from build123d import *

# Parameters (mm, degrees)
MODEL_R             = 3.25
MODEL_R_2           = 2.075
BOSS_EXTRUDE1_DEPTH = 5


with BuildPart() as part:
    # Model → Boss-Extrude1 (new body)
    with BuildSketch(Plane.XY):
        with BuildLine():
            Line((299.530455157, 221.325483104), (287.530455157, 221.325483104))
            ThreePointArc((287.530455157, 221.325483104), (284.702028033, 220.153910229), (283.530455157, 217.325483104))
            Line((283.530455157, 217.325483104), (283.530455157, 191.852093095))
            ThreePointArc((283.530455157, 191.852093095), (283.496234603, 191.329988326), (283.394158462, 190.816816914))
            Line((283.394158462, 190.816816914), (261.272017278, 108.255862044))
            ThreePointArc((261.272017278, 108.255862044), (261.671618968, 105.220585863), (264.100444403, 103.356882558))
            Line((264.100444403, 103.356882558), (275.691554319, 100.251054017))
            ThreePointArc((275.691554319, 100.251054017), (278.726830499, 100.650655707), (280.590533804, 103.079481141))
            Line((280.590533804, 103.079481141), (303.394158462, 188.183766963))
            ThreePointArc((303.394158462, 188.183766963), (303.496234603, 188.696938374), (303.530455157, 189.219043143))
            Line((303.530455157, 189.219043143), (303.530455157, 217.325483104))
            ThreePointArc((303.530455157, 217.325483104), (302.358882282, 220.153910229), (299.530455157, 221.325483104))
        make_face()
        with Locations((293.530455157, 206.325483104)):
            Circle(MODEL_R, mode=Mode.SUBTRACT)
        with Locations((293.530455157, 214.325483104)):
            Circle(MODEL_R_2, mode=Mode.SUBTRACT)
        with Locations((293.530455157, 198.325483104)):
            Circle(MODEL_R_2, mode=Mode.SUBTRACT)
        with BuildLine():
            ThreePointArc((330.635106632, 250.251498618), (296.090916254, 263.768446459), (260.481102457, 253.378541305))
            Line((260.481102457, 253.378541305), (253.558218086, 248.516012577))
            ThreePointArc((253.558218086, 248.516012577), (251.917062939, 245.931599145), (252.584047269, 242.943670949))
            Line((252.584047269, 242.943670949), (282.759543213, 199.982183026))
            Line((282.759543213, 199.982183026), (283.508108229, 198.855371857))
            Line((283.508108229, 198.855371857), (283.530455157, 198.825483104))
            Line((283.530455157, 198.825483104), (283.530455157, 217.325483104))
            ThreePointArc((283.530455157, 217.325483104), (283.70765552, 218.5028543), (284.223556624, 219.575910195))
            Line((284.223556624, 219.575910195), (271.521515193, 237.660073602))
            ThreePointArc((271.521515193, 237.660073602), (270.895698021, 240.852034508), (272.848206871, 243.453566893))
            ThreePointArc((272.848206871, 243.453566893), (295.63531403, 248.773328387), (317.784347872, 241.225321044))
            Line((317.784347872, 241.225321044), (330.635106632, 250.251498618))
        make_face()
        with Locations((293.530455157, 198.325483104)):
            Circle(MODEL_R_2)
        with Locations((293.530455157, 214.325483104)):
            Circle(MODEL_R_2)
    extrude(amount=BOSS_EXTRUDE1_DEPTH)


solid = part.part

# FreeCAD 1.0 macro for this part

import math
import FreeCAD as App
import Part
import Sketcher
from FreeCAD import Vector
Q = App.Units.Quantity

doc = App.newDocument("Part")
params = doc.addObject("Spreadsheet::Sheet", "Params")
for row, (alias, value) in enumerate([
    ("sketch1_radius", "4 mm"),
    ("sketch1_diameter", "6.5 mm"),
    ("sketch1_radius2", "42.5 mm"),
    ("sketch1_radius3", "57.5 mm"),
    ("sketch1_width", "12 mm"),
    ("pad1_length", "5 mm"),
], start=1):
    params.set(f"A{row}", alias)
    params.set(f"B{row}", "=" + value)
    params.setAlias(f"B{row}", alias)

body = doc.addObject("PartDesign::Body", "Body")

# Sketch on XY plane
sketch1 = body.newObject("Sketcher::SketchObject", "Sketch")
sketch1.AttachmentSupport = (doc.getObject("XY_Plane"), [""])
sketch1.MapMode = "FlatFace"
sketch1.addGeometry([
    Part.LineSegment(Vector(299.53, 221.325, 0), Vector(287.53, 221.325, 0)),  # 0
    Part.ArcOfCircle(Part.Circle(Vector(287.53, 217.325, 0), Vector(0, 0, 1), 4), math.radians(90), math.radians(146)),  # 1
    Part.LineSegment(Vector(284.224, 219.576, 0), Vector(271.522, 237.66, 0)),  # 2
    Part.ArcOfCircle(Part.Circle(Vector(274.795, 239.959, 0), Vector(0, 0, 1), 4), math.radians(119), math.radians(215)),  # 3
    Part.ArcOfCircle(Part.Circle(Vector(293.53, 206.325, 0), Vector(0, 0, 1), 42.5), math.radians(55), math.radians(119)),  # 4
    Part.LineSegment(Vector(317.784, 241.225, 0), Vector(330.635, 250.251, 0)),  # 5
    Part.ArcOfCircle(Part.Circle(Vector(293.53, 206.325, 0), Vector(0, 0, 1), 57.5), math.radians(50), math.radians(125)),  # 6
    Part.LineSegment(Vector(260.481, 253.379, 0), Vector(253.558, 248.516, 0)),  # 7
    Part.ArcOfCircle(Part.Circle(Vector(255.857, 245.243, 0), Vector(0, 0, 1), 4), math.radians(125), math.radians(215)),  # 8
    Part.LineSegment(Vector(252.584, 242.944, 0), Vector(282.76, 199.982, 0)),  # 9
    Part.LineSegment(Vector(282.76, 199.982, 0), Vector(283.508, 198.855, 0)),  # 10
    Part.LineSegment(Vector(283.508, 198.855, 0), Vector(283.53, 198.825, 0)),  # 11
    Part.LineSegment(Vector(283.53, 198.825, 0), Vector(283.53, 191.852, 0)),  # 12
    Part.ArcOfCircle(Part.Circle(Vector(279.53, 191.852, 0), Vector(0, 0, 1), 4), math.radians(-15), math.radians(0)),  # 13
    Part.LineSegment(Vector(283.394, 190.817, 0), Vector(261.272, 108.256, 0)),  # 14
    Part.ArcOfCircle(Part.Circle(Vector(265.136, 107.221, 0), Vector(0, 0, 1), 4), math.radians(165), math.radians(255)),  # 15
    Part.LineSegment(Vector(264.1, 103.357, 0), Vector(275.692, 100.251, 0)),  # 16
    Part.ArcOfCircle(Part.Circle(Vector(276.727, 104.115, 0), Vector(0, 0, 1), 4), math.radians(-105), math.radians(-15)),  # 17
    Part.LineSegment(Vector(280.591, 103.079, 0), Vector(303.394, 188.184, 0)),  # 18
    Part.ArcOfCircle(Part.Circle(Vector(299.53, 189.219, 0), Vector(0, 0, 1), 4), math.radians(-15), math.radians(0)),  # 19
    Part.LineSegment(Vector(303.53, 189.219, 0), Vector(303.53, 217.325, 0)),  # 20
    Part.ArcOfCircle(Part.Circle(Vector(299.53, 217.325, 0), Vector(0, 0, 1), 4), math.radians(0), math.radians(90)),  # 21
    Part.Circle(Vector(293.53, 206.325, 0), Vector(0, 0, 1), 3.25),  # 22
], False)
sketch1.addConstraint([
    Sketcher.Constraint("Tangent", 0, 2, 1, 1),
    Sketcher.Constraint("Coincident", 1, 2, 2, 1),
    Sketcher.Constraint("Tangent", 2, 2, 3, 2),
    Sketcher.Constraint("Tangent", 3, 1, 4, 2),
    Sketcher.Constraint("Coincident", 4, 1, 5, 1),
    Sketcher.Constraint("Coincident", 5, 2, 6, 1),
    Sketcher.Constraint("Tangent", 6, 2, 7, 1),
    Sketcher.Constraint("Tangent", 7, 2, 8, 1),
    Sketcher.Constraint("Tangent", 8, 2, 9, 1),
    Sketcher.Constraint("Coincident", 9, 2, 10, 1),
    Sketcher.Constraint("Coincident", 10, 2, 11, 1),
    Sketcher.Constraint("Coincident", 11, 2, 12, 1),
    Sketcher.Constraint("Tangent", 12, 2, 13, 2),
    Sketcher.Constraint("Tangent", 13, 1, 14, 1),
    Sketcher.Constraint("Tangent", 14, 2, 15, 1),
    Sketcher.Constraint("Tangent", 15, 2, 16, 1),
    Sketcher.Constraint("Tangent", 16, 2, 17, 1),
    Sketcher.Constraint("Tangent", 17, 2, 18, 1),
    Sketcher.Constraint("Tangent", 18, 2, 19, 1),
    Sketcher.Constraint("Tangent", 19, 2, 20, 1),
    Sketcher.Constraint("Tangent", 20, 2, 21, 1),
    Sketcher.Constraint("Tangent", 21, 2, 0, 1),
    Sketcher.Constraint("Horizontal", 0),
    Sketcher.Constraint("Vertical", 12),
    Sketcher.Constraint("Vertical", 20),
    Sketcher.Constraint("Coincident", 6, 3, 4, 3),
    Sketcher.Constraint("Coincident", 22, 3, 4, 3),
    Sketcher.Constraint("Equal", 1, 3),
    Sketcher.Constraint("Equal", 3, 8),
    Sketcher.Constraint("Equal", 8, 13),
    Sketcher.Constraint("Equal", 13, 15),
    Sketcher.Constraint("Equal", 15, 17),
    Sketcher.Constraint("Equal", 17, 19),
    Sketcher.Constraint("Equal", 19, 21),
    Sketcher.Constraint("Perpendicular", 2, 5),
    Sketcher.Constraint("Parallel", 5, 7),
    Sketcher.Constraint("Perpendicular", 7, 9),
    Sketcher.Constraint("Perpendicular", 14, 16),
    Sketcher.Constraint("Perpendicular", 16, 18),
    Sketcher.Constraint("Radius", 1, 4.0),
    Sketcher.Constraint("Diameter", 22, 6.5),
    Sketcher.Constraint("Radius", 4, 42.5),
    Sketcher.Constraint("Radius", 6, 57.5),
    Sketcher.Constraint("DistanceX", 0, 2, 0, 1, 12.0),
    Sketcher.Constraint("Angle", 14, Q("-105 deg")),
    Sketcher.Constraint("Distance", 16, 12.0),
    Sketcher.Constraint("DistanceX", 1, 3, 4, 3, 6.0),
    Sketcher.Constraint("DistanceY", 4, 3, 1, 3, 11.0),
    Sketcher.Constraint("DistanceX", 13, 3, 4, 3, 14.0),
    Sketcher.Constraint("Distance", 9, 52.5),
    Sketcher.Constraint("DistanceY", 11, 2, 22, 3, 7.5),
    Sketcher.Constraint("DistanceY", 12, 2, 12, 1, 6.97339),
    Sketcher.Constraint("DistanceY", -1, 1, 5, 2, 250.251499),
    Sketcher.Constraint("DistanceX", 1, 2, 0, 2, 3.306899),
    Sketcher.Constraint("DistanceX", 8, 3, 6, 2, 4.623799),
    Sketcher.Constraint("DistanceY", 9, 2, 22, 3, 6.3433),
    Sketcher.Constraint("Distance", 11, 0.037319),
    Sketcher.Constraint("Distance", 14, 85.47339),
    Sketcher.Constraint("DistanceX", -1, 1, 3, 3, 274.794771),
    Sketcher.Constraint("DistanceY", -1, 1, 3, 3, 239.959159),
    Sketcher.Constraint("DistanceX", -1, 1, 10, 2, 283.508108),
])
sketch1.setExpression("Constraints[39]", "Params.sketch1_radius")
sketch1.setExpression("Constraints[40]", "Params.sketch1_diameter")
sketch1.setExpression("Constraints[41]", "Params.sketch1_radius2")
sketch1.setExpression("Constraints[42]", "Params.sketch1_radius3")
sketch1.setExpression("Constraints[43]", "Params.sketch1_width")
pad1 = body.newObject("PartDesign::Pad", "Pad")
pad1.Profile = sketch1
pad1.setExpression("Length", "Params.pad1_length")

doc.recompute()
